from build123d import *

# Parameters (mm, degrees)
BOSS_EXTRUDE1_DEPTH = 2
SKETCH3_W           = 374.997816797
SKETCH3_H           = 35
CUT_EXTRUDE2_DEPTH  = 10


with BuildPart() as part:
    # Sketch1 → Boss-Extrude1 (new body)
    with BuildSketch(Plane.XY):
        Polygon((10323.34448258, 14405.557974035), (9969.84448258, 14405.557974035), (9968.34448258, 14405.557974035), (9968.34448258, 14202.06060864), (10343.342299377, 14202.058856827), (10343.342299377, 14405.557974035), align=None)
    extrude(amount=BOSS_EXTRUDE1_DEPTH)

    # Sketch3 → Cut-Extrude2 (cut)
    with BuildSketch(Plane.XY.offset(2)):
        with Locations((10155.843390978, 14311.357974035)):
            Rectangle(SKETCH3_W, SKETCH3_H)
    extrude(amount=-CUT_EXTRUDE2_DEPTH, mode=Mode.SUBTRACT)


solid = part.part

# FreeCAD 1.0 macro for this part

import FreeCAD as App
import Part
import Sketcher

V = App.Vector

doc = App.newDocument("Part")
body = doc.addObject("PartDesign::Body", "Body")
body.AllowCompound = True

sketch1 = body.newObject("Sketcher::SketchObject", "Sketch")
sketch1.AttachmentSupport = (doc.getObject("XY_Plane"), [""])
sketch1.MapMode = "FlatFace"
sketch1.addGeometry([
    Part.LineSegment(V(9968, 14406, 0), V(9968, 14202, 0)),
    Part.LineSegment(V(9968, 14202, 0), V(10343, 14202, 0)),
    Part.LineSegment(V(10343, 14202, 0), V(10343, 14406, 0)),
    Part.LineSegment(V(10343, 14406, 0), V(9968, 14406, 0)),
], False)
sketch1.addConstraint([
    Sketcher.Constraint("Coincident", 0, 2, 1, 1),
    Sketcher.Constraint("Coincident", 1, 2, 2, 1),
    Sketcher.Constraint("Coincident", 2, 2, 3, 1),
    Sketcher.Constraint("Coincident", 3, 2, 0, 1),
    Sketcher.Constraint("Vertical", 0),
    Sketcher.Constraint("Vertical", 2),
    Sketcher.Constraint("Horizontal", 3),
    Sketcher.Constraint("DistanceX", -1, 1, 1, 2, 10343.342299),
    Sketcher.Constraint("DistanceX", 3, 2, 3, 1, 374.997817),
    Sketcher.Constraint("DistanceY", 0, 2, 0, 1, 203.497365),
    Sketcher.Constraint("DistanceY", 2, 1, 2, 2, 203.499117),
    Sketcher.Constraint("DistanceY", -1, 1, 0, 2, 14202.060609),
])
pad1 = body.newObject("PartDesign::Pad", "Pad")
pad1.Profile = sketch1
pad1.Length = 2

sketch2 = body.newObject("Sketcher::SketchObject", "Sketch001")
sketch2.AttachmentSupport = (doc.getObject("XY_Plane"), [""])
sketch2.MapMode = "FlatFace"
sketch2.AttachmentOffset = App.Placement(V(0, 0, 2), App.Rotation())
sketch2.addGeometry([
    Part.LineSegment(V(9968, 14329, 0), V(9968, 14294, 0)),
    Part.LineSegment(V(9968, 14294, 0), V(10343, 14294, 0)),
    Part.LineSegment(V(10343, 14294, 0), V(10343, 14329, 0)),
    Part.LineSegment(V(10343, 14329, 0), V(9968, 14329, 0)),
], False)
sketch2.addConstraint([
    Sketcher.Constraint("Coincident", 0, 2, 1, 1),
    Sketcher.Constraint("Coincident", 1, 2, 2, 1),
    Sketcher.Constraint("Coincident", 2, 2, 3, 1),
    Sketcher.Constraint("Coincident", 3, 2, 0, 1),
    Sketcher.Constraint("Vertical", 0),
    Sketcher.Constraint("Horizontal", 1),
    Sketcher.Constraint("Vertical", 2),
    Sketcher.Constraint("Horizontal", 3),
    Sketcher.Constraint("DistanceY", 0, 2, 0, 1, 35.0),
    Sketcher.Constraint("DistanceX", -1, 1, 1, 2, 10343.342299),
    Sketcher.Constraint("DistanceX", 1, 1, 1, 2, 374.997817),
    Sketcher.Constraint("DistanceY", -1, 1, 0, 2, 14293.857974),
])
pocket1 = body.newObject("PartDesign::Pocket", "Pocket")
pocket1.Profile = sketch2
pocket1.Length = 10

doc.recompute()
